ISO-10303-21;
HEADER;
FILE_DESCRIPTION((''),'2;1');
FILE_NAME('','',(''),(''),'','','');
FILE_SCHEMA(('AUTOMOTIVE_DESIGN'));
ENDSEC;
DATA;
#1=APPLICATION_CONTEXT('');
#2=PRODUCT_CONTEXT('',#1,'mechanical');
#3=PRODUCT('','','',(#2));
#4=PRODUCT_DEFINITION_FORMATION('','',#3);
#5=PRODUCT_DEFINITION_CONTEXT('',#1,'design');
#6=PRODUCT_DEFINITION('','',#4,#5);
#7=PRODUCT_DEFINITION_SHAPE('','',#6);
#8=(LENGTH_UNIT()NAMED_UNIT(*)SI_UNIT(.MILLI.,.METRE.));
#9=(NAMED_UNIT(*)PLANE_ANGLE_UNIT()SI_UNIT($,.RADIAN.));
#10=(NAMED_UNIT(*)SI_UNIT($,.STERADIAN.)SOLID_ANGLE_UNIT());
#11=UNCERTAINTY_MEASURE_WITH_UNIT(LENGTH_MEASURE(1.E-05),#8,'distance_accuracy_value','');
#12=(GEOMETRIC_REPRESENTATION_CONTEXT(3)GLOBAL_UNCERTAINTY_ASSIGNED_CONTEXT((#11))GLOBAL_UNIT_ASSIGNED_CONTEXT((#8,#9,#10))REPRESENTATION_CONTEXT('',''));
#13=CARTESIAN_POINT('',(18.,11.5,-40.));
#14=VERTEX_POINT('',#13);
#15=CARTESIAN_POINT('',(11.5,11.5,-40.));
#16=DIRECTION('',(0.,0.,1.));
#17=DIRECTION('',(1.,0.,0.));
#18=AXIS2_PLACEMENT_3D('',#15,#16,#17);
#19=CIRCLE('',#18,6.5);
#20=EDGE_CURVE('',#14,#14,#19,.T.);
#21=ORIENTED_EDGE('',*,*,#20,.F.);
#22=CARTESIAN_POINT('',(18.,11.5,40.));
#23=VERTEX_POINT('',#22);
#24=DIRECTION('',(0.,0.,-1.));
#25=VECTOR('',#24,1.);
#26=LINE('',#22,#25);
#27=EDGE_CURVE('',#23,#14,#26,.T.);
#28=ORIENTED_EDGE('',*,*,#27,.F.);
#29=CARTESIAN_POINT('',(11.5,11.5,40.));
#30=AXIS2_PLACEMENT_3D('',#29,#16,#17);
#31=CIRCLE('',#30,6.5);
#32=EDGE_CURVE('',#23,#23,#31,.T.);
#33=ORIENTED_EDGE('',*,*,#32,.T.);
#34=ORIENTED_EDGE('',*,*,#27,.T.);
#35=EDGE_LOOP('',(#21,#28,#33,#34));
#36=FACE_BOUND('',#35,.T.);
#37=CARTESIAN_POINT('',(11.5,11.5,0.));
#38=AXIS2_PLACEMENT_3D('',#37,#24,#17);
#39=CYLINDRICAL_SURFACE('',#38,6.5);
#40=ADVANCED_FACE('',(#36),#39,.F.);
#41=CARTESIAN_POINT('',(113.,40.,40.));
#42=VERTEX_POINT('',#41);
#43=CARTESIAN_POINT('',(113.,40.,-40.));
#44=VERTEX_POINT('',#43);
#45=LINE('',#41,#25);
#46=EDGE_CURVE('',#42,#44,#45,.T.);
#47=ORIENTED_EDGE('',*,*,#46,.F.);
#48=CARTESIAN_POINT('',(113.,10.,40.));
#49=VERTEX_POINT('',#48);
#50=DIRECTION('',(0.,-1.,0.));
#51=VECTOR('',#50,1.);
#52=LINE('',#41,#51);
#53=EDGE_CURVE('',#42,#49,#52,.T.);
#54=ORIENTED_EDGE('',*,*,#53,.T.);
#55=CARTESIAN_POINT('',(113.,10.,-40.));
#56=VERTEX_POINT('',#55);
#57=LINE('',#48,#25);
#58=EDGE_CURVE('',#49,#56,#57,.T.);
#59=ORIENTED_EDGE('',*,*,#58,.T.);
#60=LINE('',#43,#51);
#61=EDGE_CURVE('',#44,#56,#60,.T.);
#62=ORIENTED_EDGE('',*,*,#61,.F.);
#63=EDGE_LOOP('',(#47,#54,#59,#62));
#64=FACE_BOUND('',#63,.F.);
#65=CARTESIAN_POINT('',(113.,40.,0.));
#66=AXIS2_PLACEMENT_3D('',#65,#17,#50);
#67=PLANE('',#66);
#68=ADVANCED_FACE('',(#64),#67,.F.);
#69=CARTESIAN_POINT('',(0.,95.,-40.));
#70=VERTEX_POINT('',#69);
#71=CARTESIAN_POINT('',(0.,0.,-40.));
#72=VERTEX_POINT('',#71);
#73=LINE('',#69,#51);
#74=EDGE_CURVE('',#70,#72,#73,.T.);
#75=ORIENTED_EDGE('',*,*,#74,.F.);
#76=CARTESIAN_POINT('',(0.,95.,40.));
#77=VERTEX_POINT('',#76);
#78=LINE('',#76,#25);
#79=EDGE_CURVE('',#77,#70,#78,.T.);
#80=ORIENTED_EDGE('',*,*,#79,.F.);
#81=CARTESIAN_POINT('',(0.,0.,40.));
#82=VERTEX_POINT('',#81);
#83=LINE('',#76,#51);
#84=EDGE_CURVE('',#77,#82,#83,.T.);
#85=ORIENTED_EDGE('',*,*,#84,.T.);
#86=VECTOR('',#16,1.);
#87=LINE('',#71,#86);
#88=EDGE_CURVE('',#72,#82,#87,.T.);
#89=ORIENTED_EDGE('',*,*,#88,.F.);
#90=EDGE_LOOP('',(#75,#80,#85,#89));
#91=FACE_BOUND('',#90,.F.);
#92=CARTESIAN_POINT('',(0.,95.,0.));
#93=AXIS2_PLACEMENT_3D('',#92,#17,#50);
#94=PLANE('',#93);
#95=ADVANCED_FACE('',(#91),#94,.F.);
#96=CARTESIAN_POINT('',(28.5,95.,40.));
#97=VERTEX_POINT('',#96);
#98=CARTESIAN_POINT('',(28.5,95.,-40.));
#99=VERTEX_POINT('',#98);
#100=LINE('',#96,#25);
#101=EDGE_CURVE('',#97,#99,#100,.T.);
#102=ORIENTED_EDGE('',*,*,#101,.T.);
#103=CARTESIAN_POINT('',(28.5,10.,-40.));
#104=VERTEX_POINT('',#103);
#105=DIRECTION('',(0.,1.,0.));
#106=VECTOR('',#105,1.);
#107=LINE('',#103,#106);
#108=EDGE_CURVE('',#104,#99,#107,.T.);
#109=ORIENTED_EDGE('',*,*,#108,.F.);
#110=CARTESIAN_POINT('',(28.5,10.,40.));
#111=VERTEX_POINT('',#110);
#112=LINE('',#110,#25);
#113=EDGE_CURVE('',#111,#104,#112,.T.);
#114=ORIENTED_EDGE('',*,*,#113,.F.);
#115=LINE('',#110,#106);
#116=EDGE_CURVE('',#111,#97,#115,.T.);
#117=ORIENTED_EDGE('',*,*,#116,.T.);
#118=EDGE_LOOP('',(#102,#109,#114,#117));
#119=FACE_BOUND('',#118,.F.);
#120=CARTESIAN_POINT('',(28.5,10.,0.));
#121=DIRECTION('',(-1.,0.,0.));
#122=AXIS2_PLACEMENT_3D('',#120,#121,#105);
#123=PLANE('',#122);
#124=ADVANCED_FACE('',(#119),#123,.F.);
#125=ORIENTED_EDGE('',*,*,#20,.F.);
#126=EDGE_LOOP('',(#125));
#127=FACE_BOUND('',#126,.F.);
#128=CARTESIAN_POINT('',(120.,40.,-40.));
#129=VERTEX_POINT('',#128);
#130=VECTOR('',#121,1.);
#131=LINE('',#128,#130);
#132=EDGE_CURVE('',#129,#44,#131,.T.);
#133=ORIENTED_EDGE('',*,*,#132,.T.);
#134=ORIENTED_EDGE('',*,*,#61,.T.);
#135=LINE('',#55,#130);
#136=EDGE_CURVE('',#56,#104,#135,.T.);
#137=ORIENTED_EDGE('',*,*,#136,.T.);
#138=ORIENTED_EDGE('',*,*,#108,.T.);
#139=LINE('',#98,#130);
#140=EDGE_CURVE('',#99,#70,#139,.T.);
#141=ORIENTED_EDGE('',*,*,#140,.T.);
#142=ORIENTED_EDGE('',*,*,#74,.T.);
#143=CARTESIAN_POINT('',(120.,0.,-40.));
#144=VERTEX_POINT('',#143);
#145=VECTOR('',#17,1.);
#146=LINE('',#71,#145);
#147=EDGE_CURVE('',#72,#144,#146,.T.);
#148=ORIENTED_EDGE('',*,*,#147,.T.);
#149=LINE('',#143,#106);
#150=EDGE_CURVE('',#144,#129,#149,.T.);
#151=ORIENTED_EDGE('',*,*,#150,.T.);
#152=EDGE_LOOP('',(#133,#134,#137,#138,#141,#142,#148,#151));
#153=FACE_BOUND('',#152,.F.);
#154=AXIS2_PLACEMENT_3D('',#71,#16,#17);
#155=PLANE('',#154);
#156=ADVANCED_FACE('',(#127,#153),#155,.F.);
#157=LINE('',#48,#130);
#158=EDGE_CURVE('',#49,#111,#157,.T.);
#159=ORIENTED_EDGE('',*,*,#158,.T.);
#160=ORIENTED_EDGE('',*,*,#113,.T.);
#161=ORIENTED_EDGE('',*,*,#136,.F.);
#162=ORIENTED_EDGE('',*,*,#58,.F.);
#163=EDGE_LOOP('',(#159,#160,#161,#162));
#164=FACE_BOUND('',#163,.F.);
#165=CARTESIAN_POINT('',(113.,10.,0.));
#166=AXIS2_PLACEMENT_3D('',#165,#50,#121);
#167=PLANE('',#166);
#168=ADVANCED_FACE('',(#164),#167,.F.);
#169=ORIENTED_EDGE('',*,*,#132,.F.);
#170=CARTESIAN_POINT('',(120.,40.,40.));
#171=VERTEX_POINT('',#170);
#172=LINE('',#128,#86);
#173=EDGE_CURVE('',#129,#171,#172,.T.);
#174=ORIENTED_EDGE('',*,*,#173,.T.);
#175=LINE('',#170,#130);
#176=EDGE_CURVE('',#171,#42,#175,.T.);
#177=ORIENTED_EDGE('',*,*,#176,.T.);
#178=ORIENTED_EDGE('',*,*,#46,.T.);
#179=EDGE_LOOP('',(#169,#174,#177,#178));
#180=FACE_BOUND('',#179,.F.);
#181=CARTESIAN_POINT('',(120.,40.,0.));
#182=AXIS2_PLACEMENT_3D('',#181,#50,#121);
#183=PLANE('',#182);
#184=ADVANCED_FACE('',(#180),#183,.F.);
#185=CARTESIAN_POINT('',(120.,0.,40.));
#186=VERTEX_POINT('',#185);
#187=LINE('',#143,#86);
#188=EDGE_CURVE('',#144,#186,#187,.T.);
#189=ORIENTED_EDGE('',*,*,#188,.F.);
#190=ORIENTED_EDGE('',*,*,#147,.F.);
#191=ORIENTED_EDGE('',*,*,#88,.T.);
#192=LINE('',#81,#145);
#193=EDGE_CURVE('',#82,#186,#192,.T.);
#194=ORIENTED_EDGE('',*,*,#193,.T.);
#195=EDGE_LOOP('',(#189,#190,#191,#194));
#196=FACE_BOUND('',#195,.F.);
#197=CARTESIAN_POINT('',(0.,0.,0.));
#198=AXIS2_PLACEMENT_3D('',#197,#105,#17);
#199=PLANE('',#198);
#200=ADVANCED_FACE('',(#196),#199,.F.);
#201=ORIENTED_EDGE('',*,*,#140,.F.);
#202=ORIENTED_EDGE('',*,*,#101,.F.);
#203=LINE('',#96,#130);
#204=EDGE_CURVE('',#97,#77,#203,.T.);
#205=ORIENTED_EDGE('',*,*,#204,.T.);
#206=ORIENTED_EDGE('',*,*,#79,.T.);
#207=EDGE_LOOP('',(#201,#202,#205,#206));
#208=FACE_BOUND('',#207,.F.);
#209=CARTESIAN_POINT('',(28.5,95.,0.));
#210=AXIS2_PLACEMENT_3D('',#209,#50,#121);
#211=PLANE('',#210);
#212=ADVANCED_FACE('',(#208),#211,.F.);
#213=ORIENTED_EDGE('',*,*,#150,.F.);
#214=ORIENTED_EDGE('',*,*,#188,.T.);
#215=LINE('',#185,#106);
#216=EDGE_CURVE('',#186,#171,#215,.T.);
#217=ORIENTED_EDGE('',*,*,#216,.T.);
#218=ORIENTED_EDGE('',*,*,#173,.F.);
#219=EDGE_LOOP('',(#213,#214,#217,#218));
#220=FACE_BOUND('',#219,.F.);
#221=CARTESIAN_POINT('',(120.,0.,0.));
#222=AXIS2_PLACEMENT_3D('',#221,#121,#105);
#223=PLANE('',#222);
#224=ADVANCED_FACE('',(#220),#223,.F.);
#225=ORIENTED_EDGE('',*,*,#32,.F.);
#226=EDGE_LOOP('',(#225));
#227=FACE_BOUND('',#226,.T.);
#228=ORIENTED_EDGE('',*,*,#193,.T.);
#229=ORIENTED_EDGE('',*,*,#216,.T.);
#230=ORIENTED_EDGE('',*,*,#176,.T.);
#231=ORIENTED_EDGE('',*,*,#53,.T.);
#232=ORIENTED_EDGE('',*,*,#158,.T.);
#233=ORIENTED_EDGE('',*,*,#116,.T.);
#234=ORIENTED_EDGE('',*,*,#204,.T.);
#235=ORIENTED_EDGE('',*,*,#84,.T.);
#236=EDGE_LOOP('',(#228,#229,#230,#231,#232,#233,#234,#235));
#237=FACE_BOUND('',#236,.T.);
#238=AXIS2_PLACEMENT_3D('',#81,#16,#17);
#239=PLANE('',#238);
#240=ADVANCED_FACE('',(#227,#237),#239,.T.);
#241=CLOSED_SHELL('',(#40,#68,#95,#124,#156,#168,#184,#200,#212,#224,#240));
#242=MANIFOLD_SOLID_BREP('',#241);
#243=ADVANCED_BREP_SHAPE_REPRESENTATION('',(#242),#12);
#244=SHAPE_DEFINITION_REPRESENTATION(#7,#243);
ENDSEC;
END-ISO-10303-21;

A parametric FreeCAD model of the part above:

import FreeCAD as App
import Part
import Sketcher

V = App.Vector


def add_polygon(sketch, points):
    """Adds a closed chain of lines whose ends are joined by coincident constraints."""
    first, n = sketch.GeometryCount, len(points)
    for a, b in zip(points, points[1:] + points[:1]):
        sketch.addGeometry(Part.LineSegment(App.Vector(*a, 0), App.Vector(*b, 0)), False)
    for i in range(n):
        sketch.addConstraint(Sketcher.Constraint("Coincident", first + i, 2, first + (i + 1) % n, 1))

doc = App.newDocument("Part")
body = doc.addObject("PartDesign::Body", "Body")

sketch1 = doc.addObject("Sketcher::SketchObject", "Sketch")
body.addObject(sketch1)
sketch1.AttachmentSupport = (doc.XY_Plane, [""])
sketch1.MapMode = "FlatFace"
add_polygon(sketch1, [(0, 95), (0, 0), (120, 0), (120, 40), (113, 40), (113, 10), (28, 10), (28, 95)])
sketch1.addGeometry(Part.Circle(V(12, 12, 0), V(0, 0, 1), 6), False)
sketch1.addConstraint(Sketcher.Constraint("Vertical", 0))
sketch1.addConstraint(Sketcher.Constraint("Horizontal", 1))
sketch1.addConstraint(Sketcher.Constraint("Vertical", 2))
sketch1.addConstraint(Sketcher.Constraint("Horizontal", 3))
sketch1.addConstraint(Sketcher.Constraint("Vertical", 4))
sketch1.addConstraint(Sketcher.Constraint("Horizontal", 5))
sketch1.addConstraint(Sketcher.Constraint("Vertical", 6))
sketch1.addConstraint(Sketcher.Constraint("Horizontal", 7))
sketch1.addConstraint(Sketcher.Constraint("Coincident", 0, 2, -1, 1))
sketch1.addConstraint(Sketcher.Constraint("Diameter", 8, 13.0))
sketch1.addConstraint(Sketcher.Constraint("DistanceX", 1, 1, 1, 2, 120.0))
sketch1.addConstraint(Sketcher.Constraint("DistanceX", 3, 2, 3, 1, 7.0))
sketch1.addConstraint(Sketcher.Constraint("DistanceY", 0, 2, 0, 1, 95.0))
sketch1.addConstraint(Sketcher.Constraint("DistanceY", 2, 1, 2, 2, 40.0))
sketch1.addConstraint(Sketcher.Constraint("DistanceY", -1, 1, 4, 2, 10.0))
sketch1.addConstraint(Sketcher.Constraint("DistanceX", 8, 3, 5, 2, 17.0))
sketch1.addConstraint(Sketcher.Constraint("DistanceX", -1, 1, 8, 3, 11.5))
sketch1.addConstraint(Sketcher.Constraint("DistanceY", -1, 1, 8, 3, 11.5))
pad1 = doc.addObject("PartDesign::Pad", "Pad")
body.addObject(pad1)
pad1.Profile = sketch1
pad1.Length = 80
pad1.Midplane = True

doc.recompute()
